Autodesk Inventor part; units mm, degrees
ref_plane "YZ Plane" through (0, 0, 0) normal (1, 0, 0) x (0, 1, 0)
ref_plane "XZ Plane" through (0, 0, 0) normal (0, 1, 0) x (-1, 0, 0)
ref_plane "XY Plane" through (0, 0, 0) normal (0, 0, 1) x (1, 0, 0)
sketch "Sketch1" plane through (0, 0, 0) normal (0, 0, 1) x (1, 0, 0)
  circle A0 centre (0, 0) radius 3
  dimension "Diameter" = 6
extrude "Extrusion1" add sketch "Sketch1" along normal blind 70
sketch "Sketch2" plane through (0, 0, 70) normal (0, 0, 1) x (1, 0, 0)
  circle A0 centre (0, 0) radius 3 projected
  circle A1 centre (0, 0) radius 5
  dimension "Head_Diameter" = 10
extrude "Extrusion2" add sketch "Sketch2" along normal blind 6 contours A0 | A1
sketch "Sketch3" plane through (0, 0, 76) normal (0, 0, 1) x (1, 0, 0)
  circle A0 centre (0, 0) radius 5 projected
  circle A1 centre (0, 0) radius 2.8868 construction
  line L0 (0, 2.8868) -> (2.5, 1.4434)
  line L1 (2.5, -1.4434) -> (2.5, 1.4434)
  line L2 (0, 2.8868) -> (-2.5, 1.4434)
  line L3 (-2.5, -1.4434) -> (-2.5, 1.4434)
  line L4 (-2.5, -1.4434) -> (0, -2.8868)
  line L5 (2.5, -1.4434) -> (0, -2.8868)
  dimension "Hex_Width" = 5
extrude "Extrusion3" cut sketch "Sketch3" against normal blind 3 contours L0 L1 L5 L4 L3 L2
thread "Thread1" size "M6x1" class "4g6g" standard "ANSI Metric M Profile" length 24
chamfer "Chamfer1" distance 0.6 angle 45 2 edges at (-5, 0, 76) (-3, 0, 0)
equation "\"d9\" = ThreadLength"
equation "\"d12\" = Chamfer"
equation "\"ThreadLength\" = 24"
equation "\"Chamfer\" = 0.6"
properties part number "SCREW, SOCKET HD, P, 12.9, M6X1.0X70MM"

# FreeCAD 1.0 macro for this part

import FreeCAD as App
import Part
import Sketcher
from FreeCAD import Vector
Q = App.Units.Quantity


def edges_at(feature, points):
    """Names of the edges that pass closest to the given points."""
    edges = feature.Shape.Edges
    near = lambda p: min(range(len(edges)), key=lambda i: edges[i].distToShape(Part.Vertex(*p))[0])
    return sorted({f"Edge{near(p) + 1}" for p in points})

doc = App.newDocument("Part")
body = doc.addObject("PartDesign::Body", "Body")

sketch1 = body.newObject("Sketcher::SketchObject", "Sketch")
sketch1.AttachmentSupport = (doc.getObject("XY_Plane"), [""])
sketch1.MapMode = "FlatFace"
sketch1.addGeometry(Part.Circle(Vector(0, 0, 0), Vector(0, 0, 1), 3), False)
sketch1.addConstraint([
    Sketcher.Constraint("Coincident", 0, 3, -1, 1),
    Sketcher.Constraint("Diameter", 0, 6.0),
])
pad1 = body.newObject("PartDesign::Pad", "Pad")
pad1.Profile = sketch1
pad1.Length = 70

sketch2 = body.newObject("Sketcher::SketchObject", "Sketch001")
sketch2.AttachmentSupport = (doc.getObject("XY_Plane"), [""])
sketch2.MapMode = "FlatFace"
sketch2.AttachmentOffset = App.Placement(Vector(0, 0, 70), App.Rotation())
sketch2.addGeometry(Part.Circle(Vector(0, 0, 0), Vector(0, 0, 1), 5), False)
sketch2.addConstraint([
    Sketcher.Constraint("Coincident", 0, 3, -1, 1),
    Sketcher.Constraint("Diameter", 0, 10.0),
])
pad2 = body.newObject("PartDesign::Pad", "Pad001")
pad2.Profile = sketch2
pad2.Length = 6

sketch3 = body.newObject("Sketcher::SketchObject", "Sketch002")
sketch3.AttachmentSupport = (doc.getObject("XY_Plane"), [""])
sketch3.MapMode = "FlatFace"
sketch3.AttachmentOffset = App.Placement(Vector(0, 0, 76), App.Rotation())
sketch3.addGeometry([
    Part.LineSegment(Vector(2.5, 1.4434, 0), Vector(0, 2.8868, 0)),
    Part.LineSegment(Vector(0, 2.8868, 0), Vector(-2.5, 1.4434, 0)),
    Part.LineSegment(Vector(-2.5, 1.4434, 0), Vector(-2.5, -1.4434, 0)),
    Part.LineSegment(Vector(-2.5, -1.4434, 0), Vector(0, -2.8868, 0)),
    Part.LineSegment(Vector(0, -2.8868, 0), Vector(2.5, -1.4434, 0)),
    Part.LineSegment(Vector(2.5, -1.4434, 0), Vector(2.5, 1.4434, 0)),
], False)
sketch3.addConstraint([
    Sketcher.Constraint("Coincident", 0, 2, 1, 1),
    Sketcher.Constraint("Coincident", 1, 2, 2, 1),
    Sketcher.Constraint("Coincident", 2, 2, 3, 1),
    Sketcher.Constraint("Coincident", 3, 2, 4, 1),
    Sketcher.Constraint("Coincident", 4, 2, 5, 1),
    Sketcher.Constraint("Coincident", 5, 2, 0, 1),
    Sketcher.Constraint("Vertical", 2),
    Sketcher.Constraint("Vertical", 5),
    Sketcher.Constraint("Symmetric", 0, 2, 3, 2, -1, 1),
    Sketcher.Constraint("Symmetric", 1, 2, 4, 2, -1, 1),
    Sketcher.Constraint("PointOnObject", 0, 2, -2),
    Sketcher.Constraint("Parallel", 0, 3),
    Sketcher.Constraint("Horizontal", 2, 2, 4, 2),
    Sketcher.Constraint("DistanceX", 2, 2, 4, 2, 5.0),
    Sketcher.Constraint("Angle", 0, Q("149.9996 deg")),
    Sketcher.Constraint("DistanceY", 2, 2, 2, 1, 2.8868),
])
pocket1 = body.newObject("PartDesign::Pocket", "Pocket")
pocket1.Profile = sketch3
pocket1.Length = 3
doc.recompute()

chamfer = body.newObject("PartDesign::Chamfer", "Chamfer")
chamfer.Base = (pocket1, edges_at(pocket1, [(-5, 0, 76), (-3, 0, 0)]))
chamfer.Size = 0.6

doc.recompute()
